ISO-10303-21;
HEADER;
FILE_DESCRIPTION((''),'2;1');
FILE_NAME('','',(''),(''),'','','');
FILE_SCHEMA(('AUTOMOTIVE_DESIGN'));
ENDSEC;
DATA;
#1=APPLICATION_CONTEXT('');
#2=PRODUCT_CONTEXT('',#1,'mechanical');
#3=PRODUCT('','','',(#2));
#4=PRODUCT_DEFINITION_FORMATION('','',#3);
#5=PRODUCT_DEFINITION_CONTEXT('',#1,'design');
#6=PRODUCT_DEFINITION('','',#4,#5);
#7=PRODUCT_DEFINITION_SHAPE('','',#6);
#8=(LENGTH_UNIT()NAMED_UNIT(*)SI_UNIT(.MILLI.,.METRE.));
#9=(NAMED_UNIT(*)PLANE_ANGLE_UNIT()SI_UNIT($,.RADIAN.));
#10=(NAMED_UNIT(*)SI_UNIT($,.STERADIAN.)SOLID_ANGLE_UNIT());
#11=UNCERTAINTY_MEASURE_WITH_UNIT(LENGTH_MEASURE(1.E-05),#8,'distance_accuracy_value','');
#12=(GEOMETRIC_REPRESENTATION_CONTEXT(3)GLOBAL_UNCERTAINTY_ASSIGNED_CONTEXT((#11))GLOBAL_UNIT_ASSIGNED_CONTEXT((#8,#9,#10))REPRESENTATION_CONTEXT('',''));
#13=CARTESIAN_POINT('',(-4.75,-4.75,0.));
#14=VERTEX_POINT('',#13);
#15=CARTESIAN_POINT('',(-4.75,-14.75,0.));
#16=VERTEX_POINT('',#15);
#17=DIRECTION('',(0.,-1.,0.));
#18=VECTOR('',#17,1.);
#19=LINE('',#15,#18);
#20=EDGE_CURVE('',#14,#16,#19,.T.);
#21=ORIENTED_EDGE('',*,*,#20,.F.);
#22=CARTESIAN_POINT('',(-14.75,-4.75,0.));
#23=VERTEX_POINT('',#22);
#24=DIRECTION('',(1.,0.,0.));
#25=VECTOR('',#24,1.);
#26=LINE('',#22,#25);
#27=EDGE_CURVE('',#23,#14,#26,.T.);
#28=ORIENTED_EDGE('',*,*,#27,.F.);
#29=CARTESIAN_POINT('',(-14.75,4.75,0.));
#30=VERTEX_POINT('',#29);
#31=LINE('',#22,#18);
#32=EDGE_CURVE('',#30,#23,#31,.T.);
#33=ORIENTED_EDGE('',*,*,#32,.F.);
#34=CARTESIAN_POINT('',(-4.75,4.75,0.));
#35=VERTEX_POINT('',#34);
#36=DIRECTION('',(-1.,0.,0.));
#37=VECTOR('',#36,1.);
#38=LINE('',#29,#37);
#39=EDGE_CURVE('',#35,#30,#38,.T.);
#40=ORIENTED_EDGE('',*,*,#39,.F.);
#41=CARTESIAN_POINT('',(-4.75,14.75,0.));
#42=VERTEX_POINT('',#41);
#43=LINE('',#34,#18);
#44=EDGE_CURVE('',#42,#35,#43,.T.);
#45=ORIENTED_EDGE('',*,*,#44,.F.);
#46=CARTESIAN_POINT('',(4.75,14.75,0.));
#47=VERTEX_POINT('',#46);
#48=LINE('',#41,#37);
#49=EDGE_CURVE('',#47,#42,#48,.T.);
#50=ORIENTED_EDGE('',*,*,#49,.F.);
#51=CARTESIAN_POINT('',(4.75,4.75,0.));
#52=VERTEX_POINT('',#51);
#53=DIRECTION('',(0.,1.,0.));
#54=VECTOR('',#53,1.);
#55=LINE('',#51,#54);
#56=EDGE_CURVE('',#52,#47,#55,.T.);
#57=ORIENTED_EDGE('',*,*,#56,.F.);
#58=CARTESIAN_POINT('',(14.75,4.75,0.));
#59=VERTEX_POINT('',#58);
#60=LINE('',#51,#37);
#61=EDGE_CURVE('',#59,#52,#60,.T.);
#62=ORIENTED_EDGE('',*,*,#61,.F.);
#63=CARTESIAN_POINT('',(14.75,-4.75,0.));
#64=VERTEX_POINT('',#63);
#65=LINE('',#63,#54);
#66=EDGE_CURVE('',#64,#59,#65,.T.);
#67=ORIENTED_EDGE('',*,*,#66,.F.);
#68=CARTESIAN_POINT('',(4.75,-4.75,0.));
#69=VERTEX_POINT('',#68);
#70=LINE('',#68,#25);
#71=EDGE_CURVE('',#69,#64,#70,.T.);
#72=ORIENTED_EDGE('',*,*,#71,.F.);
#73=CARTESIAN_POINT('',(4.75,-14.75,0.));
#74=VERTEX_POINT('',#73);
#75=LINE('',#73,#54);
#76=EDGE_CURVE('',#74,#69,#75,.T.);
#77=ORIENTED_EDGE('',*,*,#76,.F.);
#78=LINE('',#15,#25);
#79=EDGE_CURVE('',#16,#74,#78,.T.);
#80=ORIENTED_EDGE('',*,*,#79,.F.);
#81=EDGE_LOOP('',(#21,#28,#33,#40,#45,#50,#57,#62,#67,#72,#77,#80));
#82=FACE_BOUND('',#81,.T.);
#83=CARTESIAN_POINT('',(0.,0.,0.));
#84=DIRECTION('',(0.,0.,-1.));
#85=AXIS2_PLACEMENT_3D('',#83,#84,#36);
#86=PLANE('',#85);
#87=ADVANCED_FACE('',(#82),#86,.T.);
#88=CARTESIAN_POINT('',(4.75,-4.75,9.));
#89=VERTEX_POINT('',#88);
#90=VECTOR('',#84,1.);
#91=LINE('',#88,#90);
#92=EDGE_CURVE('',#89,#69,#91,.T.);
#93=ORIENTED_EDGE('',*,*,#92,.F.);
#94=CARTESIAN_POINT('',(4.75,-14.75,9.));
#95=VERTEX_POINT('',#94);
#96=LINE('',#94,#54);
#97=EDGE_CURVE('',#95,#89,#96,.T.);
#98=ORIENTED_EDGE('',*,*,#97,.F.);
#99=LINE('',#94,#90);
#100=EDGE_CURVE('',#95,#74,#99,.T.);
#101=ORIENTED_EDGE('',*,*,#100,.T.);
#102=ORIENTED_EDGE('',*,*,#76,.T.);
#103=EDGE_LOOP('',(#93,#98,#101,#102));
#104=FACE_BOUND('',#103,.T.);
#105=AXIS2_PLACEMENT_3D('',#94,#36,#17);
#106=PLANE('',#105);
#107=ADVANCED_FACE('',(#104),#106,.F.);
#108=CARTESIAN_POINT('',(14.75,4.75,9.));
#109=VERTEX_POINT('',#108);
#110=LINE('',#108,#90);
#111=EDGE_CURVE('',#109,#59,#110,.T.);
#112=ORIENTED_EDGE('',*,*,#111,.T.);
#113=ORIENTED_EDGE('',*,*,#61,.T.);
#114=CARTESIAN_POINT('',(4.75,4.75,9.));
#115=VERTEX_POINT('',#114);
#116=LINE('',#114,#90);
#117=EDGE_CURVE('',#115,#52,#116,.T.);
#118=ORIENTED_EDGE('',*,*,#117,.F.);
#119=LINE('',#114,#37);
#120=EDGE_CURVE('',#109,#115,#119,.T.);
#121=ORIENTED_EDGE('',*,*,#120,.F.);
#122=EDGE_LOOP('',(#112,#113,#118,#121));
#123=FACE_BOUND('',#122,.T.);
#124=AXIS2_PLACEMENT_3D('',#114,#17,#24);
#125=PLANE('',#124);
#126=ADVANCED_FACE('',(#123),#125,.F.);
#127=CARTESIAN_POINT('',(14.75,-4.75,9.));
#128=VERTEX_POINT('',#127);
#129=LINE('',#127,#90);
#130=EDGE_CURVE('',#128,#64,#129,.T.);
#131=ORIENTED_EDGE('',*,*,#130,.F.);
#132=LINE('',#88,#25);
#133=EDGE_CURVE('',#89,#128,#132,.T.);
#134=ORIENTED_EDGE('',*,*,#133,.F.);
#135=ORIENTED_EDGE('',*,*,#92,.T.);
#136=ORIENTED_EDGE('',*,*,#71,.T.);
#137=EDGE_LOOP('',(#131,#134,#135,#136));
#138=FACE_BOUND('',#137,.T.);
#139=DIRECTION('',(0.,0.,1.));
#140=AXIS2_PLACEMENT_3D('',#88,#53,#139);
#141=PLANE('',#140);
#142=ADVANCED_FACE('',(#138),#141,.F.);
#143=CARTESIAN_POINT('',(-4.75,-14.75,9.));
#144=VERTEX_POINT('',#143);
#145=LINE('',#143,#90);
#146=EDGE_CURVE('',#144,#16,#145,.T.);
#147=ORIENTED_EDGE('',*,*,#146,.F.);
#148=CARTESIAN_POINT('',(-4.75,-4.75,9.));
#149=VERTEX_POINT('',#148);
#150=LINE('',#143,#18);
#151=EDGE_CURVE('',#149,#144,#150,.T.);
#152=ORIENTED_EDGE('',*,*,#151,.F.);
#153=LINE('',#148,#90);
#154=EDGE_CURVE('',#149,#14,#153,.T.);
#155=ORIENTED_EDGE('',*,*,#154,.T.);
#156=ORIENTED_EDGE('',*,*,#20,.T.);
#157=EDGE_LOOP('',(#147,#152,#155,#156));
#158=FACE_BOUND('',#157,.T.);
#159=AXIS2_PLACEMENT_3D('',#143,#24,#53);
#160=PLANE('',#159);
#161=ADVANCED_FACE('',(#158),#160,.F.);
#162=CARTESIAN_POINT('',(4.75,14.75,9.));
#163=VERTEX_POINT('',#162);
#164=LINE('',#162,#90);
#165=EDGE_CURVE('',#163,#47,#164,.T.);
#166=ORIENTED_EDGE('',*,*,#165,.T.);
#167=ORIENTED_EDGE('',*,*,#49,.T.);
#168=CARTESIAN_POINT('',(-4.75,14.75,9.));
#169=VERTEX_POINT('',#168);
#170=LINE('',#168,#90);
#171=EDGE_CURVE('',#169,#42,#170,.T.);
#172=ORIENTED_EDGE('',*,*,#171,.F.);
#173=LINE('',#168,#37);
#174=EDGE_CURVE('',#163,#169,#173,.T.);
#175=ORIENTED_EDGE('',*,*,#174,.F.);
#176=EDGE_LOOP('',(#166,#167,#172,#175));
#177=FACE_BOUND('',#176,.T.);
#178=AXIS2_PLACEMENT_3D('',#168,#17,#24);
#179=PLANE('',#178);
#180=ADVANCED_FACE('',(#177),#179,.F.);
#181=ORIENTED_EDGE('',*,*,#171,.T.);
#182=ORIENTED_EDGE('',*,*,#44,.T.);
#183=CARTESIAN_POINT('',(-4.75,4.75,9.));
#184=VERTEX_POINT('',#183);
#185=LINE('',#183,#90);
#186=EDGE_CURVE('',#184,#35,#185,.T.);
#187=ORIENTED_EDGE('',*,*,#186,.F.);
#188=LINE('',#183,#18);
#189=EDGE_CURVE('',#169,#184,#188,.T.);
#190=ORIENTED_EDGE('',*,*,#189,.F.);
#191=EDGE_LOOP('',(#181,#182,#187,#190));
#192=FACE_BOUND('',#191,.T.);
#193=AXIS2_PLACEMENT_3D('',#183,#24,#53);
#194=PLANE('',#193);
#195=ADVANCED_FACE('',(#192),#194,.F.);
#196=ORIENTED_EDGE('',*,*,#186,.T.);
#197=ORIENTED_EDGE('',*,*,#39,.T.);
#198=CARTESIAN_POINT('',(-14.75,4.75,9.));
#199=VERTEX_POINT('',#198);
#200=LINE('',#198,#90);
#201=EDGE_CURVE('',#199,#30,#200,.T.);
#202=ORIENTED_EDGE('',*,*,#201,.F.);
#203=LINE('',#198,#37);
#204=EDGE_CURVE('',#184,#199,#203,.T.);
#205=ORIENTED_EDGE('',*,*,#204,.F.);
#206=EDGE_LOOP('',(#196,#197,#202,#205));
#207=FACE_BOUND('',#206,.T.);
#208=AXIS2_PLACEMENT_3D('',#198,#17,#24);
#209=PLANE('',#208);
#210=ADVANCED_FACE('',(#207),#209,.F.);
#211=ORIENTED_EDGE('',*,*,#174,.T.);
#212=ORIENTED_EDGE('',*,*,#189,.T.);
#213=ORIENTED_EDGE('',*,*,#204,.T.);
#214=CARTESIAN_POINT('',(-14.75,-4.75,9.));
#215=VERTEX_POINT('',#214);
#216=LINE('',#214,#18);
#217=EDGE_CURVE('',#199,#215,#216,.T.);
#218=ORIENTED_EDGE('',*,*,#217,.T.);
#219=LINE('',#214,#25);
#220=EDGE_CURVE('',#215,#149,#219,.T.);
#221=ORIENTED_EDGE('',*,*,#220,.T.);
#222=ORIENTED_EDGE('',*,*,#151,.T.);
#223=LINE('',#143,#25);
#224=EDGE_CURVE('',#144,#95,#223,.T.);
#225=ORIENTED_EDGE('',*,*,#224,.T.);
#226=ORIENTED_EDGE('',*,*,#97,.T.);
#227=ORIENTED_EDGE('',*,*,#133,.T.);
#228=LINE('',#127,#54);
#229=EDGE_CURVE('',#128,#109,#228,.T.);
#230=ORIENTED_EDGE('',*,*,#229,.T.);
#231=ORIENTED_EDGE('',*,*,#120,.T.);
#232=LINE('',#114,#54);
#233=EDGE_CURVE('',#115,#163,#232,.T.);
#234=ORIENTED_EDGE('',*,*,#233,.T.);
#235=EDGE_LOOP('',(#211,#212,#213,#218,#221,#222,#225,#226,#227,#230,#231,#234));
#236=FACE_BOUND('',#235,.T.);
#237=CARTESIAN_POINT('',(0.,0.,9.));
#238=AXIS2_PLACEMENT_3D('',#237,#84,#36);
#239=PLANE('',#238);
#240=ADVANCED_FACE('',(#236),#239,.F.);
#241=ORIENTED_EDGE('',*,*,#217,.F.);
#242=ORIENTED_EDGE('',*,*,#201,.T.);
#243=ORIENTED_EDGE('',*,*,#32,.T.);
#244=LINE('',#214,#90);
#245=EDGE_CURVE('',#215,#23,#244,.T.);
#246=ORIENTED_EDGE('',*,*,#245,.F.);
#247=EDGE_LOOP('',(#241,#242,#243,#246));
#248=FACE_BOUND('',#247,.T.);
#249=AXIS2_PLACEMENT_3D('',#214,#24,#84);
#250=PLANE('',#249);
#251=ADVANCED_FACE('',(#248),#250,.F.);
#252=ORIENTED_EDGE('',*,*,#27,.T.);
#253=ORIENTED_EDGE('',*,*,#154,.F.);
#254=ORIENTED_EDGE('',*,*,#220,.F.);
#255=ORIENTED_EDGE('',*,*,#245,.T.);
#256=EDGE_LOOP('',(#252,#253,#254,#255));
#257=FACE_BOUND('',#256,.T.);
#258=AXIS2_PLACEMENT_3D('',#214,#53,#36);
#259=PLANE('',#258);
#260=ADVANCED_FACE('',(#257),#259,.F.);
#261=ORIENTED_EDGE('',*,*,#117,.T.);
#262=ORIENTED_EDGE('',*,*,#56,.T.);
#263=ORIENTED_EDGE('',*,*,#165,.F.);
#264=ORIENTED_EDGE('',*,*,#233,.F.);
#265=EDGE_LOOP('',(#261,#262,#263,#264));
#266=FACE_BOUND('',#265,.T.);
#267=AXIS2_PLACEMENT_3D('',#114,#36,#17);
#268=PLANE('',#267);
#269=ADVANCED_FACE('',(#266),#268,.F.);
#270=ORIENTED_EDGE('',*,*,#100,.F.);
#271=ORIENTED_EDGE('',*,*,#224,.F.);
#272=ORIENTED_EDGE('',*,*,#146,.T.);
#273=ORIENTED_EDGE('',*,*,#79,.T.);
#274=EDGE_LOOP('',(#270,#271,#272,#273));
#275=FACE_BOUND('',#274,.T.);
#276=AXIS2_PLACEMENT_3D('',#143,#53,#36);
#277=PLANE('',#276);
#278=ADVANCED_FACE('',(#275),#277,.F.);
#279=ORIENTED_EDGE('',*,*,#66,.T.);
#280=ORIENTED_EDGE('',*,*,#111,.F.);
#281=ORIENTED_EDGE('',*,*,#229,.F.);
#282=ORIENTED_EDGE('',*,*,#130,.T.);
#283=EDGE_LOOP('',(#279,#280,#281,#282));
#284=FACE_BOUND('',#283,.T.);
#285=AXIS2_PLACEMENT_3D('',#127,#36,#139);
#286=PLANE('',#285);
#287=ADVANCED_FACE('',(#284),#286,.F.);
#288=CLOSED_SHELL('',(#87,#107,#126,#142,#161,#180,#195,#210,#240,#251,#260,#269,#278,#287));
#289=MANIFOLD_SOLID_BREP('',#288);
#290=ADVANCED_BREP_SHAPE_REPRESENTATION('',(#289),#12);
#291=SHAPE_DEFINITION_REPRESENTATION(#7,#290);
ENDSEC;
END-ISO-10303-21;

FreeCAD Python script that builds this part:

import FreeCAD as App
import Part
import Sketcher
from FreeCAD import Vector

doc = App.newDocument("Part")
body = doc.addObject("PartDesign::Body", "Body")

# Sketch on XY plane
sketch1 = body.newObject("Sketcher::SketchObject", "Sketch")
sketch1.AttachmentSupport = (doc.getObject("XY_Plane"), [""])
sketch1.MapMode = "FlatFace"
sketch1.addGeometry(Part.LineSegment(Vector(-5, -15, 0), Vector(5, -15, 0)), False)
sketch1.addGeometry(Part.LineSegment(Vector(5, -15, 0), Vector(5, -5, 0)), False)
sketch1.addGeometry(Part.LineSegment(Vector(5, -5, 0), Vector(15, -5, 0)), False)
sketch1.addGeometry(Part.LineSegment(Vector(15, -5, 0), Vector(15, 5, 0)), False)
sketch1.addGeometry(Part.LineSegment(Vector(15, 5, 0), Vector(5, 5, 0)), False)
sketch1.addGeometry(Part.LineSegment(Vector(5, 5, 0), Vector(5, 15, 0)), False)
sketch1.addGeometry(Part.LineSegment(Vector(5, 15, 0), Vector(-5, 15, 0)), False)
sketch1.addGeometry(Part.LineSegment(Vector(-5, 15, 0), Vector(-5, 5, 0)), False)
sketch1.addGeometry(Part.LineSegment(Vector(-5, 5, 0), Vector(-15, 5, 0)), False)
sketch1.addGeometry(Part.LineSegment(Vector(-15, 5, 0), Vector(-15, -5, 0)), False)
sketch1.addGeometry(Part.LineSegment(Vector(-15, -5, 0), Vector(-5, -5, 0)), False)
sketch1.addGeometry(Part.LineSegment(Vector(-5, -5, 0), Vector(-5, -15, 0)), False)
sketch1.addConstraint(Sketcher.Constraint("Coincident", 0, 2, 1, 1))
sketch1.addConstraint(Sketcher.Constraint("Coincident", 1, 2, 2, 1))
sketch1.addConstraint(Sketcher.Constraint("Coincident", 2, 2, 3, 1))
sketch1.addConstraint(Sketcher.Constraint("Coincident", 3, 2, 4, 1))
sketch1.addConstraint(Sketcher.Constraint("Coincident", 4, 2, 5, 1))
sketch1.addConstraint(Sketcher.Constraint("Coincident", 5, 2, 6, 1))
sketch1.addConstraint(Sketcher.Constraint("Coincident", 6, 2, 7, 1))
sketch1.addConstraint(Sketcher.Constraint("Coincident", 7, 2, 8, 1))
sketch1.addConstraint(Sketcher.Constraint("Coincident", 8, 2, 9, 1))
sketch1.addConstraint(Sketcher.Constraint("Coincident", 9, 2, 10, 1))
sketch1.addConstraint(Sketcher.Constraint("Coincident", 10, 2, 11, 1))
sketch1.addConstraint(Sketcher.Constraint("Coincident", 11, 2, 0, 1))
sketch1.addConstraint(Sketcher.Constraint("Horizontal", 0))
sketch1.addConstraint(Sketcher.Constraint("Vertical", 1))
sketch1.addConstraint(Sketcher.Constraint("Horizontal", 2))
sketch1.addConstraint(Sketcher.Constraint("Vertical", 3))
sketch1.addConstraint(Sketcher.Constraint("Horizontal", 4))
sketch1.addConstraint(Sketcher.Constraint("Vertical", 5))
sketch1.addConstraint(Sketcher.Constraint("Horizontal", 6))
sketch1.addConstraint(Sketcher.Constraint("Vertical", 7))
sketch1.addConstraint(Sketcher.Constraint("Horizontal", 8))
sketch1.addConstraint(Sketcher.Constraint("Vertical", 9))
sketch1.addConstraint(Sketcher.Constraint("Horizontal", 10))
sketch1.addConstraint(Sketcher.Constraint("Vertical", 11))
sketch1.addConstraint(Sketcher.Constraint("Symmetric", 0, 2, 6, 2, -1, 1))
sketch1.addConstraint(Sketcher.Constraint("Symmetric", 2, 2, 8, 2, -1, 1))
sketch1.addConstraint(Sketcher.Constraint("Symmetric", 4, 2, 10, 2, -1, 1))
sketch1.addConstraint(Sketcher.Constraint("Symmetric", 4, 2, 7, 2, -2))
sketch1.addConstraint(Sketcher.Constraint("Equal", 10, 1))
sketch1.addConstraint(Sketcher.Constraint("Equal", 6, 3))
sketch1.addConstraint(Sketcher.Constraint("DistanceX", 2, 1, 2, 2, 10.0))
sketch1.addConstraint(Sketcher.Constraint("DistanceX", 0, 1, 0, 2, 9.5))
pad1 = body.newObject("PartDesign::Pad", "Pad")
pad1.Profile = sketch1
pad1.Length = 9

doc.recompute()
